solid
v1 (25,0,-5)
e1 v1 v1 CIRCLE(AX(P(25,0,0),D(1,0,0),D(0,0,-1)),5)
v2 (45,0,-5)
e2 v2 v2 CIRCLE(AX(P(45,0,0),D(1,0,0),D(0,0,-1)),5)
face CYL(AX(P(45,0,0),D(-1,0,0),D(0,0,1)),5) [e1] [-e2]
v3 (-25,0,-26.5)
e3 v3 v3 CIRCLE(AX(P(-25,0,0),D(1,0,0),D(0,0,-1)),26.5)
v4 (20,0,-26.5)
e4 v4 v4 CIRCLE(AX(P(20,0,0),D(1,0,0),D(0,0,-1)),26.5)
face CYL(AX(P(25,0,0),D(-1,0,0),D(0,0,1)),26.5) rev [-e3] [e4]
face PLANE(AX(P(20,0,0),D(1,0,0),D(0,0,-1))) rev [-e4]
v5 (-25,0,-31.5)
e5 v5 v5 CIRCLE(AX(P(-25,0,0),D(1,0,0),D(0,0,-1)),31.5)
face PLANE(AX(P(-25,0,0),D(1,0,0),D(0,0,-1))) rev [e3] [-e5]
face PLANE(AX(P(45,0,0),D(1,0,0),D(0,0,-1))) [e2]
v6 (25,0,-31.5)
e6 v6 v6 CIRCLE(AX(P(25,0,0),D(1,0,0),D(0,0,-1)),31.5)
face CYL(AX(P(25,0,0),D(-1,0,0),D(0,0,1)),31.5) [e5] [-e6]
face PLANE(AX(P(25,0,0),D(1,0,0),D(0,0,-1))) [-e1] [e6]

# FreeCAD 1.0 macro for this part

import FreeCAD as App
import Part
import Sketcher


def faces_at(feature, points):
    """Names of the faces that lie closest to the given points."""
    faces = feature.Shape.Faces
    near = lambda p: min(range(len(faces)), key=lambda i: faces[i].distToShape(Part.Vertex(*p))[0])
    return sorted({f"Face{near(p) + 1}" for p in points})

doc = App.newDocument("Part")
params = doc.addObject("Spreadsheet::Sheet", "Params")
for row, (alias, value) in enumerate([
    ("sketch1_diameter", "63 mm"),
    ("pad1_length", "50 mm"),
    ("thickness_wall", "5 mm"),
    ("sketch2_diameter", "10 mm"),
    ("pad2_length", "20 mm"),
], start=1):
    params.set(f"A{row}", alias)
    params.set(f"B{row}", "=" + value)
    params.setAlias(f"B{row}", alias)

body = doc.addObject("PartDesign::Body", "Body")

sketch1 = doc.addObject("Sketcher::SketchObject", "Sketch")
body.addObject(sketch1)
sketch1.AttachmentSupport = (doc.YZ_Plane, [""])
sketch1.MapMode = "FlatFace"
sketch1.addGeometry(Part.Circle(App.Vector(0, 0, 0), App.Vector(0, 0, 1), 31.5), False)
sketch1.addConstraint([
    Sketcher.Constraint("Coincident", 0, 3, -1, 1),
    Sketcher.Constraint("Diameter", 0, 63.0),
])
sketch1.setExpression("Constraints[1]", "Params.sketch1_diameter")
pad1 = doc.addObject("PartDesign::Pad", "Pad")
body.addObject(pad1)
pad1.Profile = sketch1
pad1.setExpression("Length", "Params.pad1_length")
pad1.Midplane = True
doc.recompute()

thickness = doc.addObject("PartDesign::Thickness", "Thickness")
body.addObject(thickness)
thickness.Base = (pad1, faces_at(pad1, [(-25, 0, 0)]))
thickness.setExpression("Value", "Params.thickness_wall")
thickness.Reversed = True
thickness.Join = "Intersection"

sketch2 = doc.addObject("Sketcher::SketchObject", "Sketch001")
body.addObject(sketch2)
sketch2.AttachmentSupport = (doc.YZ_Plane, [""])
sketch2.MapMode = "FlatFace"
sketch2.AttachmentOffset = App.Placement(App.Vector(0, 0, 25), App.Rotation())
sketch2.addGeometry(Part.Circle(App.Vector(0, 0, 0), App.Vector(0, 0, 1), 5), False)
sketch2.addConstraint([
    Sketcher.Constraint("Coincident", 0, 3, -1, 1),
    Sketcher.Constraint("Diameter", 0, 10.0),
])
sketch2.setExpression("Constraints[1]", "Params.sketch2_diameter")
pad2 = doc.addObject("PartDesign::Pad", "Pad001")
body.addObject(pad2)
pad2.Profile = sketch2
pad2.setExpression("Length", "Params.pad2_length")

doc.recompute()
